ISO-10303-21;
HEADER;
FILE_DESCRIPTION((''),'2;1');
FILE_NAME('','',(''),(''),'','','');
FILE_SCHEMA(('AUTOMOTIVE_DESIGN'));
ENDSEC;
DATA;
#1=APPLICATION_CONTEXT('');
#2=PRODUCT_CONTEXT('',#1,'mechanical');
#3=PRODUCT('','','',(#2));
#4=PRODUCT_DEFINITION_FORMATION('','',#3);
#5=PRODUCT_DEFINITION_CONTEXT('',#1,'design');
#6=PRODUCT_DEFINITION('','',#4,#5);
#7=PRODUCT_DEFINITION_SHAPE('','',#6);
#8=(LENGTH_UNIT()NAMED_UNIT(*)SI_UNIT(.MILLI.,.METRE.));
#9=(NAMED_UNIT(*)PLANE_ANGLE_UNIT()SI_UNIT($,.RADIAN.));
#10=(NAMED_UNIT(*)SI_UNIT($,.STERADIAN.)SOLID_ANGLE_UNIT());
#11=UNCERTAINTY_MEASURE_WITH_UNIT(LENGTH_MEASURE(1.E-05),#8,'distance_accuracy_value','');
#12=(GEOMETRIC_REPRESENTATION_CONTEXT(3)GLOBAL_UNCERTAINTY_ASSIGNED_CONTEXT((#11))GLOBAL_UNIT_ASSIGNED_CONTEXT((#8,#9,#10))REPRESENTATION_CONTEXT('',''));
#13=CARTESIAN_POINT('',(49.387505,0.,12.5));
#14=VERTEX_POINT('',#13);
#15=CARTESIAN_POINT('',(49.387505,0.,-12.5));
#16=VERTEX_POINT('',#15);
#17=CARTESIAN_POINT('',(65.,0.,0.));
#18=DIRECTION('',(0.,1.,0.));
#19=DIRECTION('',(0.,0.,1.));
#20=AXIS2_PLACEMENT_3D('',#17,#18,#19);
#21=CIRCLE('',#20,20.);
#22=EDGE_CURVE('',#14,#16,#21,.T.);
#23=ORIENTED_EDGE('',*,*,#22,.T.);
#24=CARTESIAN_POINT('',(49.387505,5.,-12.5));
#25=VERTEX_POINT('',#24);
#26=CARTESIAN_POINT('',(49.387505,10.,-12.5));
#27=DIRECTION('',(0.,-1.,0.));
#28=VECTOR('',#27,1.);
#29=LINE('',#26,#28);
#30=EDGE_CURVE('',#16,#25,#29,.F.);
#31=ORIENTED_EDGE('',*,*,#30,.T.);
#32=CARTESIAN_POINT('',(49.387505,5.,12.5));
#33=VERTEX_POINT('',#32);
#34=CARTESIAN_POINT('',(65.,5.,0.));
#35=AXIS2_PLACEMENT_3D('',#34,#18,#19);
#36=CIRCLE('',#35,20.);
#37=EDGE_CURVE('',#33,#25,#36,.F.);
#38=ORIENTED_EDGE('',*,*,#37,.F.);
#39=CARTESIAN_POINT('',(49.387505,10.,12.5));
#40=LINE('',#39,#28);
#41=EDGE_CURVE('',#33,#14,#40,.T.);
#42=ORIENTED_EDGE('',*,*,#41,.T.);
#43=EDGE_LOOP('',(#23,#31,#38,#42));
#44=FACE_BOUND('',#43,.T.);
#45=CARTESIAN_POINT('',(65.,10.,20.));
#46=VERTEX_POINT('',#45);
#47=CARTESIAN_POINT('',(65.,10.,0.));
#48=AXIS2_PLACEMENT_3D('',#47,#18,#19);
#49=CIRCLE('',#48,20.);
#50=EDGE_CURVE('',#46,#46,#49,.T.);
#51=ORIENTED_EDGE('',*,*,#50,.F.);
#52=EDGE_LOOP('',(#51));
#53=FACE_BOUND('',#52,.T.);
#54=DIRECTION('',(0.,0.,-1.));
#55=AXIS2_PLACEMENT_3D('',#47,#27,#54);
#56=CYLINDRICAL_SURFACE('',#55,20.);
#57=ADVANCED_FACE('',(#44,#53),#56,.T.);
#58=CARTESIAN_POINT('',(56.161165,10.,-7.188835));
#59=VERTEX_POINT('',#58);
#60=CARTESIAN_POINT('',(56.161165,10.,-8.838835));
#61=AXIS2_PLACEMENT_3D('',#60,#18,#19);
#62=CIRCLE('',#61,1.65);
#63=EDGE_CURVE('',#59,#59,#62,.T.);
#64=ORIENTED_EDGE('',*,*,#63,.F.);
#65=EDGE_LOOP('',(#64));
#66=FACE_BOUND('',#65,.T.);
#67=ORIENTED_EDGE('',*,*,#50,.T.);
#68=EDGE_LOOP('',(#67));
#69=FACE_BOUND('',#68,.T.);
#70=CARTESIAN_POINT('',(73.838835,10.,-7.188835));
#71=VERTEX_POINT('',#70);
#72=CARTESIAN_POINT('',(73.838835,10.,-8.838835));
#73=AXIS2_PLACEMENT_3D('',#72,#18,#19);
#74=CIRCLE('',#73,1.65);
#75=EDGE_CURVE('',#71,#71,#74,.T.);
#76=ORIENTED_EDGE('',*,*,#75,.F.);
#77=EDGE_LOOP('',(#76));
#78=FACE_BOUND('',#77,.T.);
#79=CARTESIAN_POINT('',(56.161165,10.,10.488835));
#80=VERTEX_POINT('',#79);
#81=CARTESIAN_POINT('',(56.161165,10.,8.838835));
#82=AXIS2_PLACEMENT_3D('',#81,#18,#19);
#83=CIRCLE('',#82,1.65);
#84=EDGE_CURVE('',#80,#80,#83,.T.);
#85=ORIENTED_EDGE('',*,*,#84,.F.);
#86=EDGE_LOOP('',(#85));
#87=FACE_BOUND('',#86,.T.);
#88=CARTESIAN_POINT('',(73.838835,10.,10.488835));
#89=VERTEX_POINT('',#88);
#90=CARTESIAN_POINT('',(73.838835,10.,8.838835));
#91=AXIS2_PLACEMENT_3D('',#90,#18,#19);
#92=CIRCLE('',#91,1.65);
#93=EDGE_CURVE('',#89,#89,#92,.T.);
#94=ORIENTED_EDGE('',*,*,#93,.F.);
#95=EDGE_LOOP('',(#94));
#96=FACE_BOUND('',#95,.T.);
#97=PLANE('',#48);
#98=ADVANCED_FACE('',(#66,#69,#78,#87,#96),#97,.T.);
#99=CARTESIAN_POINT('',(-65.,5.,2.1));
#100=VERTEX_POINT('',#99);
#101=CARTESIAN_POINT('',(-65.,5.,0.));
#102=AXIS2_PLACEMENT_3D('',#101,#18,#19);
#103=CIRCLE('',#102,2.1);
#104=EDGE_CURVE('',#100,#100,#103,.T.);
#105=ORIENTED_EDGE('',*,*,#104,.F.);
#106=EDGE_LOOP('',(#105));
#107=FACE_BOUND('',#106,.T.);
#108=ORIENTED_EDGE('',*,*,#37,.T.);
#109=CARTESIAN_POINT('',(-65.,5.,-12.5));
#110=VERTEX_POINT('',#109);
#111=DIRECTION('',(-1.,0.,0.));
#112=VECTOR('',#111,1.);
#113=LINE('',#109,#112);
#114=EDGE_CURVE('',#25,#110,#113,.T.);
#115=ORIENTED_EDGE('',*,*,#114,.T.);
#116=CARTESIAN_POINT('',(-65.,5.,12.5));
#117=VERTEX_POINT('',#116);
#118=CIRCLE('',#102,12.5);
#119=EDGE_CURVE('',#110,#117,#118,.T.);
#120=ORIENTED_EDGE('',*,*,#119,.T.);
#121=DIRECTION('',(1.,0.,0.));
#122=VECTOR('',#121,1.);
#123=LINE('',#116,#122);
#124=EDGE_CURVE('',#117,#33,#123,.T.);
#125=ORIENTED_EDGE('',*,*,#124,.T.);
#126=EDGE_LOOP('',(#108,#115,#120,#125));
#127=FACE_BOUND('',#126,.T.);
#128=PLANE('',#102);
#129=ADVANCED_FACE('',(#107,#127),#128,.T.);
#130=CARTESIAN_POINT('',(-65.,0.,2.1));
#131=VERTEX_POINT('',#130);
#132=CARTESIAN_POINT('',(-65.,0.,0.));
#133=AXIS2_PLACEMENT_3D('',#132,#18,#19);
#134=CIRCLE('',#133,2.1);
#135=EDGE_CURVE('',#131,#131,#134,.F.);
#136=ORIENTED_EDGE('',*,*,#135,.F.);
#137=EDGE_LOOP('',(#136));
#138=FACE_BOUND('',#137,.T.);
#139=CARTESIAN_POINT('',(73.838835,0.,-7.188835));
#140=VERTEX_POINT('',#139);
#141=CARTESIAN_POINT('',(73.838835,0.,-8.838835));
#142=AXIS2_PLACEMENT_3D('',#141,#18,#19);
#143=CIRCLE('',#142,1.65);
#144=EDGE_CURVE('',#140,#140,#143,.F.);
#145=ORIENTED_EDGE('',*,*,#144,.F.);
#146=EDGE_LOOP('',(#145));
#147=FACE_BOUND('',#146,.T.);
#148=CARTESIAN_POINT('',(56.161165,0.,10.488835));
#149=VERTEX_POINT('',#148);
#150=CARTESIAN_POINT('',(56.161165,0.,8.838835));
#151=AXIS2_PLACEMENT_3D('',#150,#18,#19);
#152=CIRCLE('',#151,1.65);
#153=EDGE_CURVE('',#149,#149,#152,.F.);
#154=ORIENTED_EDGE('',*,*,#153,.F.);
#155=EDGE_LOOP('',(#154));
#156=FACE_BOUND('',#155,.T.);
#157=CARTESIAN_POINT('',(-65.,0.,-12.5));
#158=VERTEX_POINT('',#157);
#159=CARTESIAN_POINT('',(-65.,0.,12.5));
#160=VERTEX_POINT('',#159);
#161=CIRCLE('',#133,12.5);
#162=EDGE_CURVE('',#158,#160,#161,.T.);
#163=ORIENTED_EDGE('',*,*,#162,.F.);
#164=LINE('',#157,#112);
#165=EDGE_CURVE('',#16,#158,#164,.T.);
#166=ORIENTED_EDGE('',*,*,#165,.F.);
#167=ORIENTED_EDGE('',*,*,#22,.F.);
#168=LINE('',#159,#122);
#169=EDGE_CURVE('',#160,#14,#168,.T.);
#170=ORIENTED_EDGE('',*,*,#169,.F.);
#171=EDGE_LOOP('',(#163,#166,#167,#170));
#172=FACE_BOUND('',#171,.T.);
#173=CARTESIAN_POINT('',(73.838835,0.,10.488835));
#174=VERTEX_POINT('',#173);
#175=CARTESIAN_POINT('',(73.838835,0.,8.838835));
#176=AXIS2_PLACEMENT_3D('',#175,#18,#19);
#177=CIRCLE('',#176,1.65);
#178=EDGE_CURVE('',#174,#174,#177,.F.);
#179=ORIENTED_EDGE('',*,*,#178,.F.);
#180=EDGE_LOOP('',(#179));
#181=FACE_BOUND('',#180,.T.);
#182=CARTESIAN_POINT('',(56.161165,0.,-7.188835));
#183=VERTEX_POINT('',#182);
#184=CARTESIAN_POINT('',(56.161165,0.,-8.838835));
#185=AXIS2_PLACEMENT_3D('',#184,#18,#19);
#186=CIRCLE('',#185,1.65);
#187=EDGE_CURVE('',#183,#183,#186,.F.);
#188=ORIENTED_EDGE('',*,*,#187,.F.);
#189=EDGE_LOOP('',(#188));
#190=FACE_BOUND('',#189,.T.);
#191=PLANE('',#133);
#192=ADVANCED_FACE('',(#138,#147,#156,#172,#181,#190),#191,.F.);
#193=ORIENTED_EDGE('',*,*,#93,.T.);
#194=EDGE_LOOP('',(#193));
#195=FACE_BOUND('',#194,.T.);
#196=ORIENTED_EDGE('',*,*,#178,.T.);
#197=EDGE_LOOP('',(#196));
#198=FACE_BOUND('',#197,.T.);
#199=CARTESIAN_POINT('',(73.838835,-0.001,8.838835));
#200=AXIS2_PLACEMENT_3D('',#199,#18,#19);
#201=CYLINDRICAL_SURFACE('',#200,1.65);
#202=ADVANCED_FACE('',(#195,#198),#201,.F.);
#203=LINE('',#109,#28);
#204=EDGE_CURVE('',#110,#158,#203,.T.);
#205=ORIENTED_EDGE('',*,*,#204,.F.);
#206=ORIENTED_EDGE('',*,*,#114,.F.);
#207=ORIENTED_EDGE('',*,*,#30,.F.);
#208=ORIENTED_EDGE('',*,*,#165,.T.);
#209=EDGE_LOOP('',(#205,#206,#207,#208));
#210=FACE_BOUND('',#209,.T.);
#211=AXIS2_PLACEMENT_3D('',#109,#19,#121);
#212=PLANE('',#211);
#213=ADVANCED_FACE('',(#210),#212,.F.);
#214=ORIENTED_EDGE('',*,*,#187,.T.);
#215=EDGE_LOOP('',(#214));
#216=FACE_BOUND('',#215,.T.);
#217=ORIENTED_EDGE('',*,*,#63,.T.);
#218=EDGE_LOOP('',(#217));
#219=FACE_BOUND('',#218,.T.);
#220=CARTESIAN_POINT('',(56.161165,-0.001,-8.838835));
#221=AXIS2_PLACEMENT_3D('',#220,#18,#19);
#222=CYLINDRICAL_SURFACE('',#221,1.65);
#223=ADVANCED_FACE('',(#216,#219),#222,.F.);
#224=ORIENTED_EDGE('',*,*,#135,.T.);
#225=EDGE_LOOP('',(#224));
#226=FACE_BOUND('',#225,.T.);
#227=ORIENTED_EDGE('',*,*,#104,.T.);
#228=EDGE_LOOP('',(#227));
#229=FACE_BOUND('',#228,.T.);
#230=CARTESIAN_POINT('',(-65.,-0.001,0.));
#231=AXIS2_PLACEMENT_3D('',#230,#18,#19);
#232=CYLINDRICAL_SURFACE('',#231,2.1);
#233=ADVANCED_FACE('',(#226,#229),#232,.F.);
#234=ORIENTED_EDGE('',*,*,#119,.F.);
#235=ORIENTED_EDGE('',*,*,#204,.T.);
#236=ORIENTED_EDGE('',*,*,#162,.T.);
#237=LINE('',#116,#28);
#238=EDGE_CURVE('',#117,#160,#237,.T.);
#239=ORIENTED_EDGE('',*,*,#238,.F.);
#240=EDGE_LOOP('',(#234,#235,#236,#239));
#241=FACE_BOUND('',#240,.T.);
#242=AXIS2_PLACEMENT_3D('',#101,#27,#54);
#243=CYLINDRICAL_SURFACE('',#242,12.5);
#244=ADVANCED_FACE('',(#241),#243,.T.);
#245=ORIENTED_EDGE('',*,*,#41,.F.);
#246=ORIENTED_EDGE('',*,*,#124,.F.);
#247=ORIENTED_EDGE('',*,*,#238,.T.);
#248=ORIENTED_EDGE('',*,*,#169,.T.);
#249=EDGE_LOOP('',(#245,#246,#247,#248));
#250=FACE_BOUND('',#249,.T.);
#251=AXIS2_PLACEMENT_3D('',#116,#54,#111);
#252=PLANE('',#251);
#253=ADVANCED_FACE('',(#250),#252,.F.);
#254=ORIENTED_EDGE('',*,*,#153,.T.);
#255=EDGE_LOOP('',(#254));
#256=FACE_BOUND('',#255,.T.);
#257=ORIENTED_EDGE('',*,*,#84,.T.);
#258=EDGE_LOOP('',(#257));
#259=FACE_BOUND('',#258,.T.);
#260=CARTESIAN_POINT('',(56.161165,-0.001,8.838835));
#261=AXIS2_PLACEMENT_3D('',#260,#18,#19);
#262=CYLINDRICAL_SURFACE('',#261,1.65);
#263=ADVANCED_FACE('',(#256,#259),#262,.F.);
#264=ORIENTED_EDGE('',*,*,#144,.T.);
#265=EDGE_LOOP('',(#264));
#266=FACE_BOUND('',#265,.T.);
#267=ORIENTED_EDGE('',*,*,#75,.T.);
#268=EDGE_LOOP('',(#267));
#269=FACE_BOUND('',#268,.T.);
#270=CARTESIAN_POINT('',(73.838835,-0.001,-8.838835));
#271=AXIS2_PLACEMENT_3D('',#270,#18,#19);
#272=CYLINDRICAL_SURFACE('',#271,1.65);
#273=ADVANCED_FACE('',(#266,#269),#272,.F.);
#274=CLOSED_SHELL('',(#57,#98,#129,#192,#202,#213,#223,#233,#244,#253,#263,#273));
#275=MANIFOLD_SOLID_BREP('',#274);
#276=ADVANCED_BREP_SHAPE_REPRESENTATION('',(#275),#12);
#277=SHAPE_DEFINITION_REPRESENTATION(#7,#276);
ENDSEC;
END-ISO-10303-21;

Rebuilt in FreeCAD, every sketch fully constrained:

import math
import FreeCAD as App
import Part
import Sketcher

doc = App.newDocument("Part")
body = doc.addObject("PartDesign::Body", "Body")

# Sketch on XZ plane
sketch1 = body.newObject("Sketcher::SketchObject", "Sketch")
sketch1.AttachmentSupport = (doc.getObject("XZ_Plane"), [""])
sketch1.MapMode = "FlatFace"
sketch1.addGeometry(Part.LineSegment(App.Vector(65, -12, 0), App.Vector(-65, -12, 0)), False)
sketch1.addGeometry(Part.ArcOfCircle(Part.Circle(App.Vector(-65, 0, 0), App.Vector(0, 0, 1), 12), math.radians(90), math.radians(270)), False)
sketch1.addGeometry(Part.LineSegment(App.Vector(-65, 12, 0), App.Vector(65, 12, 0)), False)
sketch1.addGeometry(Part.ArcOfCircle(Part.Circle(App.Vector(65, 0, 0), App.Vector(0, 0, 1), 12), math.radians(-90), math.radians(90)), False)
sketch1.addConstraint(Sketcher.Constraint("Tangent", 0, 2, 1, 2))
sketch1.addConstraint(Sketcher.Constraint("Tangent", 1, 1, 2, 1))
sketch1.addConstraint(Sketcher.Constraint("Tangent", 2, 2, 3, 2))
sketch1.addConstraint(Sketcher.Constraint("Tangent", 3, 1, 0, 1))
sketch1.addConstraint(Sketcher.Constraint("Horizontal", 0))
sketch1.addConstraint(Sketcher.Constraint("Horizontal", 2))
sketch1.addConstraint(Sketcher.Constraint("Symmetric", 1, 3, 3, 3, -1, 1))
sketch1.addConstraint(Sketcher.Constraint("Radius", 1, 12.5))
sketch1.addConstraint(Sketcher.Constraint("DistanceX", 0, 2, 0, 1, 130.0))
pad1 = body.newObject("PartDesign::Pad", "Pad")
pad1.Profile = sketch1
pad1.Length = 5
pad1.Reversed = True

# Sketch on XZ plane
sketch2 = body.newObject("Sketcher::SketchObject", "Sketch001")
sketch2.AttachmentSupport = (doc.getObject("XZ_Plane"), [""])
sketch2.MapMode = "FlatFace"
sketch2.addGeometry(Part.Circle(App.Vector(65, 0, 0), App.Vector(0, 0, 1), 20), False)
sketch2.addConstraint(Sketcher.Constraint("PointOnObject", 0, 3, -1))
sketch2.addConstraint(Sketcher.Constraint("Diameter", 0, 40.0))
sketch2.addConstraint(Sketcher.Constraint("DistanceX", -1, 1, 0, 3, 65.0))
pad2 = body.newObject("PartDesign::Pad", "Pad001")
pad2.Profile = sketch2
pad2.Length = 10
pad2.Reversed = True

# Sketch on XZ plane
sketch3 = body.newObject("Sketcher::SketchObject", "Sketch002")
sketch3.AttachmentSupport = (doc.getObject("XZ_Plane"), [""])
sketch3.MapMode = "FlatFace"
sketch3.AttachmentOffset = App.Placement(App.Vector(0, 0, -10), App.Rotation())
sketch3.addGeometry(Part.Circle(App.Vector(56.2, -8.8, 0), App.Vector(0, 0, 1), 1.6), False)
sketch3.addConstraint(Sketcher.Constraint("Diameter", 0, 3.3))
sketch3.addConstraint(Sketcher.Constraint("DistanceX", -1, 1, 0, 3, 56.161165))
sketch3.addConstraint(Sketcher.Constraint("DistanceY", 0, 3, -1, 1, 8.838835))
pocket1 = body.newObject("PartDesign::Pocket", "Pocket")
pocket1.Profile = sketch3
pocket1.Type = "UpToFirst"
pocket1.Reversed = True

# Sketch on XZ plane
sketch4 = body.newObject("Sketcher::SketchObject", "Sketch003")
sketch4.AttachmentSupport = (doc.getObject("XZ_Plane"), [""])
sketch4.MapMode = "FlatFace"
sketch4.AttachmentOffset = App.Placement(App.Vector(0, 0, -10), App.Rotation())
sketch4.addGeometry(Part.Circle(App.Vector(73.8, -8.8, 0), App.Vector(0, 0, 1), 1.6), False)
sketch4.addConstraint(Sketcher.Constraint("Diameter", 0, 3.3))
sketch4.addConstraint(Sketcher.Constraint("DistanceX", -1, 1, 0, 3, 73.838835))
sketch4.addConstraint(Sketcher.Constraint("DistanceY", 0, 3, -1, 1, 8.838835))
pocket2 = body.newObject("PartDesign::Pocket", "Pocket001")
pocket2.Profile = sketch4
pocket2.Type = "UpToFirst"
pocket2.Reversed = True

# Sketch on XZ plane
sketch5 = body.newObject("Sketcher::SketchObject", "Sketch004")
sketch5.AttachmentSupport = (doc.getObject("XZ_Plane"), [""])
sketch5.MapMode = "FlatFace"
sketch5.AttachmentOffset = App.Placement(App.Vector(0, 0, -10), App.Rotation())
sketch5.addGeometry(Part.Circle(App.Vector(73.8, 8.8, 0), App.Vector(0, 0, 1), 1.6), False)
sketch5.addConstraint(Sketcher.Constraint("Diameter", 0, 3.3))
sketch5.addConstraint(Sketcher.Constraint("DistanceX", -1, 1, 0, 3, 73.838835))
sketch5.addConstraint(Sketcher.Constraint("DistanceY", -1, 1, 0, 3, 8.838835))
pocket3 = body.newObject("PartDesign::Pocket", "Pocket002")
pocket3.Profile = sketch5
pocket3.Type = "UpToFirst"
pocket3.Reversed = True

# Sketch on XZ plane
sketch6 = body.newObject("Sketcher::SketchObject", "Sketch005")
sketch6.AttachmentSupport = (doc.getObject("XZ_Plane"), [""])
sketch6.MapMode = "FlatFace"
sketch6.AttachmentOffset = App.Placement(App.Vector(0, 0, -10), App.Rotation())
sketch6.addGeometry(Part.Circle(App.Vector(56.2, 8.8, 0), App.Vector(0, 0, 1), 1.6), False)
sketch6.addConstraint(Sketcher.Constraint("Diameter", 0, 3.3))
sketch6.addConstraint(Sketcher.Constraint("DistanceX", -1, 1, 0, 3, 56.161165))
sketch6.addConstraint(Sketcher.Constraint("DistanceY", -1, 1, 0, 3, 8.838835))
pocket4 = body.newObject("PartDesign::Pocket", "Pocket003")
pocket4.Profile = sketch6
pocket4.Type = "UpToFirst"
pocket4.Reversed = True

# Sketch on XZ plane
sketch7 = body.newObject("Sketcher::SketchObject", "Sketch006")
sketch7.AttachmentSupport = (doc.getObject("XZ_Plane"), [""])
sketch7.MapMode = "FlatFace"
sketch7.AttachmentOffset = App.Placement(App.Vector(0, 0, -5), App.Rotation())
sketch7.addGeometry(Part.Circle(App.Vector(-65, 0, 0), App.Vector(0, 0, 1), 2.1), False)
sketch7.addConstraint(Sketcher.Constraint("PointOnObject", 0, 3, -1))
sketch7.addConstraint(Sketcher.Constraint("Diameter", 0, 4.2))
sketch7.addConstraint(Sketcher.Constraint("DistanceX", 0, 3, -1, 1, 65.0))
pocket5 = body.newObject("PartDesign::Pocket", "Pocket004")
pocket5.Profile = sketch7
pocket5.Type = "UpToFirst"
pocket5.Reversed = True

doc.recompute()
